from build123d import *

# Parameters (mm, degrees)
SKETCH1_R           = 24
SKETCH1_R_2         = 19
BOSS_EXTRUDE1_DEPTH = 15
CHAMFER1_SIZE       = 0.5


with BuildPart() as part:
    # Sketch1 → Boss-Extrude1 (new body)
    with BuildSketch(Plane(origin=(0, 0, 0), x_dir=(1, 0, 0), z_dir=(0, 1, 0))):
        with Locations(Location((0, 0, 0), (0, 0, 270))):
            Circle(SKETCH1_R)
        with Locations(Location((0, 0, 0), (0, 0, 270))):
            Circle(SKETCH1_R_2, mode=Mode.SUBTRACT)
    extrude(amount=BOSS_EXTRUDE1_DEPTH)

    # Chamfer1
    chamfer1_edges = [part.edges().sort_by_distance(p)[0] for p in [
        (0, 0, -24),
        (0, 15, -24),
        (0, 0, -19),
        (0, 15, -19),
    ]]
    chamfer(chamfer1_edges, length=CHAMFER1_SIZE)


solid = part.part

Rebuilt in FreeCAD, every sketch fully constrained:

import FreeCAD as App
import Part
import Sketcher

V = App.Vector
Q = App.Units.Quantity


def edges_at(feature, points):
    """Names of the edges that pass closest to the given points."""
    edges = feature.Shape.Edges
    near = lambda p: min(range(len(edges)), key=lambda i: edges[i].distToShape(Part.Vertex(*p))[0])
    return sorted({f"Edge{near(p) + 1}" for p in points})

doc = App.newDocument("Part")
body = doc.addObject("PartDesign::Body", "Body")

# Sketch on XZ plane
sketch1 = body.newObject("Sketcher::SketchObject", "Sketch")
sketch1.AttachmentSupport = (doc.getObject("XZ_Plane"), [""])
sketch1.MapMode = "FlatFace"
sketch1.addGeometry(Part.Circle(V(0, 0, 0), V(0, 0, 1), 24), False)
sketch1.addGeometry(Part.Circle(V(0, 0, 0), V(0, 0, 1), 19), False)
sketch1.addConstraint(Sketcher.Constraint("Coincident", 0, 3, -1, 1))
sketch1.addConstraint(Sketcher.Constraint("Coincident", 1, 3, -1, 1))
sketch1.addConstraint(Sketcher.Constraint("Diameter", 0, Q("48 mm")))
sketch1.addConstraint(Sketcher.Constraint("Diameter", 1, Q("38 mm")))
pad1 = body.newObject("PartDesign::Pad", "Pad")
pad1.Profile = sketch1
pad1.Length = 15
pad1.Reversed = True
doc.recompute()

chamfer = body.newObject("PartDesign::Chamfer", "Chamfer")
chamfer.Base = (pad1, edges_at(pad1, [
    (0, 0, -24),
    (0, 15, -24),
    (0, 0, -19),
    (0, 15, -19),
]))
chamfer.Size = 0.5

doc.recompute()
